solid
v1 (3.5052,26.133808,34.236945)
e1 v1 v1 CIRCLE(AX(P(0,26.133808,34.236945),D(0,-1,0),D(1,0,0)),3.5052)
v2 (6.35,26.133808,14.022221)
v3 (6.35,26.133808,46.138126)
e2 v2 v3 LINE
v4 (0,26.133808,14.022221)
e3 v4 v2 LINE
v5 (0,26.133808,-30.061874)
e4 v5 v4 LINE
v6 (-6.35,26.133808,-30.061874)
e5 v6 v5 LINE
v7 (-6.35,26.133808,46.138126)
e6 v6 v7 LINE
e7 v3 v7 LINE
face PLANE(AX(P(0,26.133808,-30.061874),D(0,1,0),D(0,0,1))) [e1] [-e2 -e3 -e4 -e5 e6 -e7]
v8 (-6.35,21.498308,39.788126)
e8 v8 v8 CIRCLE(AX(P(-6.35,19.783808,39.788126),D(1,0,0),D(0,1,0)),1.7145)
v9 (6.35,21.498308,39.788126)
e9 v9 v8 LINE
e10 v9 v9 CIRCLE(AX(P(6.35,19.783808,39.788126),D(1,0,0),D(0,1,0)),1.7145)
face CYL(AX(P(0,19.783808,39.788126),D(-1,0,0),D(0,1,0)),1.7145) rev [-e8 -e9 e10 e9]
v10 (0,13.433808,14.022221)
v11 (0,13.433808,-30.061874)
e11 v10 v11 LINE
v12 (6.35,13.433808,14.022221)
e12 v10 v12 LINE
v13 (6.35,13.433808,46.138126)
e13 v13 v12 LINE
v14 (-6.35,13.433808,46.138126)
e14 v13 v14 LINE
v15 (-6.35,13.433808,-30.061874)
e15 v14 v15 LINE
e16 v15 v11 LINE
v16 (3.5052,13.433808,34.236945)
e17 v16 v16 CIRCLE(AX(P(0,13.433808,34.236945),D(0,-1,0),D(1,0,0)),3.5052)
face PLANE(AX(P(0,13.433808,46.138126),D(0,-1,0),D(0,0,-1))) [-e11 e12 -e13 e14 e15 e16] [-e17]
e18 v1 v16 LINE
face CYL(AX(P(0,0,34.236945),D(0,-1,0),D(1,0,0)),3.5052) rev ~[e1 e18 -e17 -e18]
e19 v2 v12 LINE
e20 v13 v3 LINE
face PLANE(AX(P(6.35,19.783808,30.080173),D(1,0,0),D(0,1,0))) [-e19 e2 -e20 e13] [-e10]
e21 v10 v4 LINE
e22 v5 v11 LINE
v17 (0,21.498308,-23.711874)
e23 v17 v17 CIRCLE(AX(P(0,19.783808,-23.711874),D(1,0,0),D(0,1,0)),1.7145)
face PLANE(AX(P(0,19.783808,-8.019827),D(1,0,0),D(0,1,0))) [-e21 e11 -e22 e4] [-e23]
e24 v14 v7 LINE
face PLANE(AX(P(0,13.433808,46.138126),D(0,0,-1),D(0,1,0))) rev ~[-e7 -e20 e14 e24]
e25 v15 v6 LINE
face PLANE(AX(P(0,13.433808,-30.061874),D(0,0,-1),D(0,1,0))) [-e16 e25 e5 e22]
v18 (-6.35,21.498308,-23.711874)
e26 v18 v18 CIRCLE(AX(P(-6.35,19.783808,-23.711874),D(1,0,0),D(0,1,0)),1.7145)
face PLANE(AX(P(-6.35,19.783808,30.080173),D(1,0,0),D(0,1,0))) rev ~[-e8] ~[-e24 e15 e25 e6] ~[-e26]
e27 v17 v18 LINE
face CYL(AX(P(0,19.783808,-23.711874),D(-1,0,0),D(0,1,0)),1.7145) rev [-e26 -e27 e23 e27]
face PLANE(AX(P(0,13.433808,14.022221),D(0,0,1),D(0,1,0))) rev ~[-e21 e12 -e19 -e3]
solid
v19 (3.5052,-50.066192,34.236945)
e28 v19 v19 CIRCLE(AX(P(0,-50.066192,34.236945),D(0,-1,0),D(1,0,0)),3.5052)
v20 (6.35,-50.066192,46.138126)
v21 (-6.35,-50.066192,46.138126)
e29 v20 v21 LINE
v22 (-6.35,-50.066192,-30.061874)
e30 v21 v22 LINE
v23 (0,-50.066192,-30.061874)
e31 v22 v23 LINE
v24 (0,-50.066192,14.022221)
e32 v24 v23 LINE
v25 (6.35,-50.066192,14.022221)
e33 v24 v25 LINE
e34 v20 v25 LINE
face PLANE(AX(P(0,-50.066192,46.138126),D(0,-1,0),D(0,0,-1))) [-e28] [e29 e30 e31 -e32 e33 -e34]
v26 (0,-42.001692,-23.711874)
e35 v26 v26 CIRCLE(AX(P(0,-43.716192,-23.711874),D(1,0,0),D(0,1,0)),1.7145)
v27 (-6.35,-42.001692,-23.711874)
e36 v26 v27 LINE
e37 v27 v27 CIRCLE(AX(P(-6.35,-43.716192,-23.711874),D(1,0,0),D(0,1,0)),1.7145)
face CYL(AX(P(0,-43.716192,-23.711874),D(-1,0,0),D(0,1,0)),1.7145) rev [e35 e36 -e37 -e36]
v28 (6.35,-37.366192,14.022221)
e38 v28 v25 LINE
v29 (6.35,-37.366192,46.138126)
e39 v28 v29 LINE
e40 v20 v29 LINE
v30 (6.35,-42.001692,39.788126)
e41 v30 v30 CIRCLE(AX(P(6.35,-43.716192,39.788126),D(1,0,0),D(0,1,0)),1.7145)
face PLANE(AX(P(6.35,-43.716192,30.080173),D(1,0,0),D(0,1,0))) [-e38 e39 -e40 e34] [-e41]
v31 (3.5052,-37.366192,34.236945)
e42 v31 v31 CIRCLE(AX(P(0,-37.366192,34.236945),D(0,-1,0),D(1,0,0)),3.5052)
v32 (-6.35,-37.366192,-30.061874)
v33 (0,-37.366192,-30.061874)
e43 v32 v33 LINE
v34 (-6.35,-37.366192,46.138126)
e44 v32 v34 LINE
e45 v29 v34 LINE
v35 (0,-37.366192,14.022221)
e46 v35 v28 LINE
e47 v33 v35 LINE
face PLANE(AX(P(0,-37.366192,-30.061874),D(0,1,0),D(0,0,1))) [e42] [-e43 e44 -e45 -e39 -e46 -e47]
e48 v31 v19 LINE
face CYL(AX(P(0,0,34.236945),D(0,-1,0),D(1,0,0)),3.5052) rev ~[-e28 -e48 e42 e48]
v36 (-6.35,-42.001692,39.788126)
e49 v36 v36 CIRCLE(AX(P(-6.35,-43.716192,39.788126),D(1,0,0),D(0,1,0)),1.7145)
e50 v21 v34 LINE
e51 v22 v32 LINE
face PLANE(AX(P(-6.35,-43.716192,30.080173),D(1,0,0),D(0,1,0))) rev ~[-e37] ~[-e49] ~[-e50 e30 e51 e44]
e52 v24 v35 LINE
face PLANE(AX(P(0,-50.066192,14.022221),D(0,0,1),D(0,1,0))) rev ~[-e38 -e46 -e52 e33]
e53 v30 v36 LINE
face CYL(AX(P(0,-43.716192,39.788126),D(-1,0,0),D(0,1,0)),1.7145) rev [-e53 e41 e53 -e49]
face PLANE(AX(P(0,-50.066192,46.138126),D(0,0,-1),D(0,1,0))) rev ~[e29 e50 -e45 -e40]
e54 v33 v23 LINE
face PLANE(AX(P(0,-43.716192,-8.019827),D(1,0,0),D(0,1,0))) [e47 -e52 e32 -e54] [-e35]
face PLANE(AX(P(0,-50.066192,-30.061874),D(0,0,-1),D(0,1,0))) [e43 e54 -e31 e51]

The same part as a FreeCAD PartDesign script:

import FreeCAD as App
import Part
import Sketcher
from FreeCAD import Vector
Q = App.Units.Quantity

doc = App.newDocument("Part")
body = doc.addObject("PartDesign::Body", "Body")

sketch1 = doc.addObject("Sketcher::SketchObject", "Sketch")
body.addObject(sketch1)
sketch1.AttachmentSupport = (doc.YZ_Plane, [""])
sketch1.MapMode = "FlatFace"
sketch1.addGeometry([
    Part.LineSegment(Vector(-50.1, 46.1, 0), Vector(-50.1, -30.1, 0)),
    Part.LineSegment(Vector(-50.1, -30.1, 0), Vector(-37.4, -30.1, 0)),
    Part.LineSegment(Vector(-37.4, -30.1, 0), Vector(-37.4, 46.1, 0)),
    Part.LineSegment(Vector(-37.4, 46.1, 0), Vector(-50.1, 46.1, 0)),
    Part.Circle(Vector(-43.7, -23.7, 0), Vector(0, 0, 1), 1.7),
    Part.Circle(Vector(-43.7, 39.8, 0), Vector(0, 0, 1), 1.7),
], False)
sketch1.addConstraint([
    Sketcher.Constraint("Coincident", 0, 2, 1, 1),
    Sketcher.Constraint("Coincident", 1, 2, 2, 1),
    Sketcher.Constraint("Coincident", 2, 2, 3, 1),
    Sketcher.Constraint("Coincident", 3, 2, 0, 1),
    Sketcher.Constraint("Vertical", 0),
    Sketcher.Constraint("Horizontal", 1),
    Sketcher.Constraint("Vertical", 2),
    Sketcher.Constraint("Horizontal", 3),
    Sketcher.Constraint("Equal", 4, 5),
    Sketcher.Constraint("Vertical", 4, 3, 5, 3),
    Sketcher.Constraint("DistanceY", 0, 2, 0, 1, Q("3 in")),
    Sketcher.Constraint("Diameter", 4, Q("0.135 in")),
    Sketcher.Constraint("DistanceX", 1, 1, 1, 2, Q("0.5 in")),
    Sketcher.Constraint("DistanceY", 4, 3, 5, 3, Q("2.5 in")),
    Sketcher.Constraint("DistanceX", 0, 2, 4, 3, Q("0.25 in")),
    Sketcher.Constraint("DistanceY", 0, 2, 4, 3, Q("0.25 in")),
    Sketcher.Constraint("DistanceX", 4, 3, -1, 1, Q("43.716192 mm")),
    Sketcher.Constraint("DistanceY", 4, 3, -1, 1, Q("23.711874 mm")),
])
pad1 = doc.addObject("PartDesign::Pad", "Pad")
body.addObject(pad1)
pad1.Profile = sketch1
pad1.Length = Q("0.5 in")
pad1.Midplane = True
body2 = doc.addObject("PartDesign::Body", "Body001")

sketch2 = doc.addObject("Sketcher::SketchObject", "Sketch001")
body2.addObject(sketch2)
sketch2.AttachmentSupport = (doc.getObject("YZ_Plane001"), [""])
sketch2.MapMode = "FlatFace"
sketch2.addGeometry([
    Part.LineSegment(Vector(13.4, 46.1, 0), Vector(13.4, -30.1, 0)),
    Part.LineSegment(Vector(13.4, -30.1, 0), Vector(26.1, -30.1, 0)),
    Part.LineSegment(Vector(26.1, -30.1, 0), Vector(26.1, 46.1, 0)),
    Part.LineSegment(Vector(26.1, 46.1, 0), Vector(13.4, 46.1, 0)),
    Part.Circle(Vector(19.8, -23.7, 0), Vector(0, 0, 1), 1.7),
    Part.Circle(Vector(19.8, 39.8, 0), Vector(0, 0, 1), 1.7),
], False)
sketch2.addConstraint([
    Sketcher.Constraint("Coincident", 0, 2, 1, 1),
    Sketcher.Constraint("Coincident", 1, 2, 2, 1),
    Sketcher.Constraint("Coincident", 2, 2, 3, 1),
    Sketcher.Constraint("Coincident", 3, 2, 0, 1),
    Sketcher.Constraint("Vertical", 0),
    Sketcher.Constraint("Horizontal", 1),
    Sketcher.Constraint("Vertical", 2),
    Sketcher.Constraint("Horizontal", 3),
    Sketcher.Constraint("Equal", 4, 5),
    Sketcher.Constraint("Vertical", 4, 3, 5, 3),
    Sketcher.Constraint("DistanceY", 0, 2, 0, 1, Q("3 in")),
    Sketcher.Constraint("Diameter", 4, Q("0.135 in")),
    Sketcher.Constraint("DistanceX", 1, 1, 1, 2, Q("0.5 in")),
    Sketcher.Constraint("DistanceY", 4, 3, 5, 3, Q("2.5 in")),
    Sketcher.Constraint("DistanceX", 0, 2, 4, 3, Q("0.25 in")),
    Sketcher.Constraint("DistanceY", 0, 2, 4, 3, Q("0.25 in")),
    Sketcher.Constraint("DistanceX", -1, 1, 4, 3, Q("19.783808 mm")),
    Sketcher.Constraint("DistanceY", 4, 3, -1, 1, Q("23.711874 mm")),
])
pad2 = doc.addObject("PartDesign::Pad", "Pad001")
body2.addObject(pad2)
pad2.Profile = sketch2
pad2.Length = Q("0.5 in")
pad2.Midplane = True
body3 = doc.addObject("PartDesign::Body", "Body002")

sketch3 = doc.addObject("Sketcher::SketchObject", "Sketch002")
body3.addObject(sketch3)
sketch3.AttachmentSupport = (doc.getObject("XZ_Plane002"), [""])
sketch3.MapMode = "FlatFace"
sketch3.addGeometry(Part.Circle(Vector(0, 34.2, 0), Vector(0, 0, 1), 3.5), False)
sketch3.addConstraint([
    Sketcher.Constraint("PointOnObject", 0, 3, -2),
    Sketcher.Constraint("Diameter", 0, Q("0.276 in")),
    Sketcher.Constraint("DistanceY", -1, 1, 0, 3, Q("34.236945 mm")),
])
pad3 = doc.addObject("PartDesign::Pad", "Pad002")
body3.addObject(pad3)
pad3.Profile = sketch3
pad3.Length = Q("4 in")
pad3.Midplane = True
doc.recompute()

body4 = doc.addObject("PartDesign::Body", "Body003")
body4.BaseFeature = body3
boolean = doc.addObject("PartDesign::Boolean", "Boolean")
body2.addObject(boolean)
boolean.Type = "Cut"
boolean.addObjects([body4])
doc.recompute()

boolean2 = doc.addObject("PartDesign::Boolean", "Boolean001")
body.addObject(boolean2)
boolean2.Type = "Cut"
boolean2.addObjects([body3])
body5 = doc.addObject("PartDesign::Body", "Body004")

sketch4 = doc.addObject("Sketcher::SketchObject", "Sketch003")
body5.addObject(sketch4)
sketch4.AttachmentSupport = (doc.getObject("YZ_Plane004"), [""])
sketch4.MapMode = "FlatFace"
sketch4.addGeometry([
    Part.LineSegment(Vector(-50.1, 14, 0), Vector(-50.1, -51.8, 0)),
    Part.LineSegment(Vector(-50.1, -51.8, 0), Vector(-37.4, -51.8, 0)),
    Part.LineSegment(Vector(-37.4, -51.8, 0), Vector(-37.4, 14, 0)),
    Part.LineSegment(Vector(-37.4, 14, 0), Vector(-50.1, 14, 0)),
    Part.Circle(Vector(-43.7, -23.7, 0), Vector(0, 0, 1), 1.7),
], False)
sketch4.addConstraint([
    Sketcher.Constraint("Coincident", 0, 2, 1, 1),
    Sketcher.Constraint("Coincident", 1, 2, 2, 1),
    Sketcher.Constraint("Coincident", 2, 2, 3, 1),
    Sketcher.Constraint("Coincident", 3, 2, 0, 1),
    Sketcher.Constraint("Vertical", 0),
    Sketcher.Constraint("Horizontal", 1),
    Sketcher.Constraint("Vertical", 2),
    Sketcher.Constraint("Horizontal", 3),
    Sketcher.Constraint("Diameter", 4, Q("0.135 in")),
    Sketcher.Constraint("DistanceX", 1, 1, 1, 2, Q("0.5 in")),
    Sketcher.Constraint("DistanceX", 0, 2, 4, 3, Q("0.25 in")),
    Sketcher.Constraint("DistanceY", 0, 2, 0, 1, Q("65.781307 mm")),
    Sketcher.Constraint("DistanceX", 4, 3, -1, 1, Q("43.716192 mm")),
    Sketcher.Constraint("DistanceY", -1, 1, 2, 2, Q("14.022221 mm")),
    Sketcher.Constraint("DistanceY", 4, 3, -1, 1, Q("23.711874 mm")),
])
pad4 = doc.addObject("PartDesign::Pad", "Pad003")
body5.addObject(pad4)
pad4.Profile = sketch4
pad4.Length = Q("1 in")
body6 = doc.addObject("PartDesign::Body", "Body005")

sketch5 = doc.addObject("Sketcher::SketchObject", "Sketch004")
body6.addObject(sketch5)
sketch5.AttachmentSupport = (doc.getObject("YZ_Plane005"), [""])
sketch5.MapMode = "FlatFace"
sketch5.addGeometry([
    Part.LineSegment(Vector(13.4, 14, 0), Vector(13.4, -51.8, 0)),
    Part.LineSegment(Vector(13.4, -51.8, 0), Vector(26.1, -51.8, 0)),
    Part.LineSegment(Vector(26.1, -51.8, 0), Vector(26.1, 14, 0)),
    Part.LineSegment(Vector(26.1, 14, 0), Vector(13.4, 14, 0)),
    Part.Circle(Vector(19.8, -23.7, 0), Vector(0, 0, 1), 1.7),
], False)
sketch5.addConstraint([
    Sketcher.Constraint("Coincident", 0, 2, 1, 1),
    Sketcher.Constraint("Coincident", 1, 2, 2, 1),
    Sketcher.Constraint("Coincident", 2, 2, 3, 1),
    Sketcher.Constraint("Coincident", 3, 2, 0, 1),
    Sketcher.Constraint("Vertical", 0),
    Sketcher.Constraint("Horizontal", 1),
    Sketcher.Constraint("Vertical", 2),
    Sketcher.Constraint("Horizontal", 3),
    Sketcher.Constraint("Diameter", 4, Q("0.135 in")),
    Sketcher.Constraint("DistanceX", 1, 1, 1, 2, Q("0.5 in")),
    Sketcher.Constraint("DistanceX", 0, 2, 4, 3, Q("0.25 in")),
    Sketcher.Constraint("DistanceY", 0, 2, 0, 1, Q("65.781307 mm")),
    Sketcher.Constraint("DistanceX", -1, 1, 4, 3, Q("19.783808 mm")),
    Sketcher.Constraint("DistanceY", -1, 1, 2, 2, Q("14.022221 mm")),
    Sketcher.Constraint("DistanceY", 4, 3, -1, 1, Q("23.711874 mm")),
])
pad5 = doc.addObject("PartDesign::Pad", "Pad004")
body6.addObject(pad5)
pad5.Profile = sketch5
pad5.Length = Q("1 in")
doc.recompute()

body7 = doc.addObject("PartDesign::Body", "Body006")
body7.BaseFeature = body6
boolean3 = doc.addObject("PartDesign::Boolean", "Boolean002")
body2.addObject(boolean3)
boolean3.Type = "Cut"
boolean3.addObjects([body7])
doc.recompute()

body8 = doc.addObject("PartDesign::Body", "Body007")
body8.BaseFeature = body5
boolean4 = doc.addObject("PartDesign::Boolean", "Boolean003")
body2.addObject(boolean4)
boolean4.Type = "Cut"
boolean4.addObjects([body8])
doc.recompute()

boolean5 = doc.addObject("PartDesign::Boolean", "Boolean004")
body.addObject(boolean5)
boolean5.Type = "Cut"
boolean5.addObjects([body6])
doc.recompute()

boolean6 = doc.addObject("PartDesign::Boolean", "Boolean005")
body.addObject(boolean6)
boolean6.Type = "Cut"
boolean6.addObjects([body5])

doc.recompute()
